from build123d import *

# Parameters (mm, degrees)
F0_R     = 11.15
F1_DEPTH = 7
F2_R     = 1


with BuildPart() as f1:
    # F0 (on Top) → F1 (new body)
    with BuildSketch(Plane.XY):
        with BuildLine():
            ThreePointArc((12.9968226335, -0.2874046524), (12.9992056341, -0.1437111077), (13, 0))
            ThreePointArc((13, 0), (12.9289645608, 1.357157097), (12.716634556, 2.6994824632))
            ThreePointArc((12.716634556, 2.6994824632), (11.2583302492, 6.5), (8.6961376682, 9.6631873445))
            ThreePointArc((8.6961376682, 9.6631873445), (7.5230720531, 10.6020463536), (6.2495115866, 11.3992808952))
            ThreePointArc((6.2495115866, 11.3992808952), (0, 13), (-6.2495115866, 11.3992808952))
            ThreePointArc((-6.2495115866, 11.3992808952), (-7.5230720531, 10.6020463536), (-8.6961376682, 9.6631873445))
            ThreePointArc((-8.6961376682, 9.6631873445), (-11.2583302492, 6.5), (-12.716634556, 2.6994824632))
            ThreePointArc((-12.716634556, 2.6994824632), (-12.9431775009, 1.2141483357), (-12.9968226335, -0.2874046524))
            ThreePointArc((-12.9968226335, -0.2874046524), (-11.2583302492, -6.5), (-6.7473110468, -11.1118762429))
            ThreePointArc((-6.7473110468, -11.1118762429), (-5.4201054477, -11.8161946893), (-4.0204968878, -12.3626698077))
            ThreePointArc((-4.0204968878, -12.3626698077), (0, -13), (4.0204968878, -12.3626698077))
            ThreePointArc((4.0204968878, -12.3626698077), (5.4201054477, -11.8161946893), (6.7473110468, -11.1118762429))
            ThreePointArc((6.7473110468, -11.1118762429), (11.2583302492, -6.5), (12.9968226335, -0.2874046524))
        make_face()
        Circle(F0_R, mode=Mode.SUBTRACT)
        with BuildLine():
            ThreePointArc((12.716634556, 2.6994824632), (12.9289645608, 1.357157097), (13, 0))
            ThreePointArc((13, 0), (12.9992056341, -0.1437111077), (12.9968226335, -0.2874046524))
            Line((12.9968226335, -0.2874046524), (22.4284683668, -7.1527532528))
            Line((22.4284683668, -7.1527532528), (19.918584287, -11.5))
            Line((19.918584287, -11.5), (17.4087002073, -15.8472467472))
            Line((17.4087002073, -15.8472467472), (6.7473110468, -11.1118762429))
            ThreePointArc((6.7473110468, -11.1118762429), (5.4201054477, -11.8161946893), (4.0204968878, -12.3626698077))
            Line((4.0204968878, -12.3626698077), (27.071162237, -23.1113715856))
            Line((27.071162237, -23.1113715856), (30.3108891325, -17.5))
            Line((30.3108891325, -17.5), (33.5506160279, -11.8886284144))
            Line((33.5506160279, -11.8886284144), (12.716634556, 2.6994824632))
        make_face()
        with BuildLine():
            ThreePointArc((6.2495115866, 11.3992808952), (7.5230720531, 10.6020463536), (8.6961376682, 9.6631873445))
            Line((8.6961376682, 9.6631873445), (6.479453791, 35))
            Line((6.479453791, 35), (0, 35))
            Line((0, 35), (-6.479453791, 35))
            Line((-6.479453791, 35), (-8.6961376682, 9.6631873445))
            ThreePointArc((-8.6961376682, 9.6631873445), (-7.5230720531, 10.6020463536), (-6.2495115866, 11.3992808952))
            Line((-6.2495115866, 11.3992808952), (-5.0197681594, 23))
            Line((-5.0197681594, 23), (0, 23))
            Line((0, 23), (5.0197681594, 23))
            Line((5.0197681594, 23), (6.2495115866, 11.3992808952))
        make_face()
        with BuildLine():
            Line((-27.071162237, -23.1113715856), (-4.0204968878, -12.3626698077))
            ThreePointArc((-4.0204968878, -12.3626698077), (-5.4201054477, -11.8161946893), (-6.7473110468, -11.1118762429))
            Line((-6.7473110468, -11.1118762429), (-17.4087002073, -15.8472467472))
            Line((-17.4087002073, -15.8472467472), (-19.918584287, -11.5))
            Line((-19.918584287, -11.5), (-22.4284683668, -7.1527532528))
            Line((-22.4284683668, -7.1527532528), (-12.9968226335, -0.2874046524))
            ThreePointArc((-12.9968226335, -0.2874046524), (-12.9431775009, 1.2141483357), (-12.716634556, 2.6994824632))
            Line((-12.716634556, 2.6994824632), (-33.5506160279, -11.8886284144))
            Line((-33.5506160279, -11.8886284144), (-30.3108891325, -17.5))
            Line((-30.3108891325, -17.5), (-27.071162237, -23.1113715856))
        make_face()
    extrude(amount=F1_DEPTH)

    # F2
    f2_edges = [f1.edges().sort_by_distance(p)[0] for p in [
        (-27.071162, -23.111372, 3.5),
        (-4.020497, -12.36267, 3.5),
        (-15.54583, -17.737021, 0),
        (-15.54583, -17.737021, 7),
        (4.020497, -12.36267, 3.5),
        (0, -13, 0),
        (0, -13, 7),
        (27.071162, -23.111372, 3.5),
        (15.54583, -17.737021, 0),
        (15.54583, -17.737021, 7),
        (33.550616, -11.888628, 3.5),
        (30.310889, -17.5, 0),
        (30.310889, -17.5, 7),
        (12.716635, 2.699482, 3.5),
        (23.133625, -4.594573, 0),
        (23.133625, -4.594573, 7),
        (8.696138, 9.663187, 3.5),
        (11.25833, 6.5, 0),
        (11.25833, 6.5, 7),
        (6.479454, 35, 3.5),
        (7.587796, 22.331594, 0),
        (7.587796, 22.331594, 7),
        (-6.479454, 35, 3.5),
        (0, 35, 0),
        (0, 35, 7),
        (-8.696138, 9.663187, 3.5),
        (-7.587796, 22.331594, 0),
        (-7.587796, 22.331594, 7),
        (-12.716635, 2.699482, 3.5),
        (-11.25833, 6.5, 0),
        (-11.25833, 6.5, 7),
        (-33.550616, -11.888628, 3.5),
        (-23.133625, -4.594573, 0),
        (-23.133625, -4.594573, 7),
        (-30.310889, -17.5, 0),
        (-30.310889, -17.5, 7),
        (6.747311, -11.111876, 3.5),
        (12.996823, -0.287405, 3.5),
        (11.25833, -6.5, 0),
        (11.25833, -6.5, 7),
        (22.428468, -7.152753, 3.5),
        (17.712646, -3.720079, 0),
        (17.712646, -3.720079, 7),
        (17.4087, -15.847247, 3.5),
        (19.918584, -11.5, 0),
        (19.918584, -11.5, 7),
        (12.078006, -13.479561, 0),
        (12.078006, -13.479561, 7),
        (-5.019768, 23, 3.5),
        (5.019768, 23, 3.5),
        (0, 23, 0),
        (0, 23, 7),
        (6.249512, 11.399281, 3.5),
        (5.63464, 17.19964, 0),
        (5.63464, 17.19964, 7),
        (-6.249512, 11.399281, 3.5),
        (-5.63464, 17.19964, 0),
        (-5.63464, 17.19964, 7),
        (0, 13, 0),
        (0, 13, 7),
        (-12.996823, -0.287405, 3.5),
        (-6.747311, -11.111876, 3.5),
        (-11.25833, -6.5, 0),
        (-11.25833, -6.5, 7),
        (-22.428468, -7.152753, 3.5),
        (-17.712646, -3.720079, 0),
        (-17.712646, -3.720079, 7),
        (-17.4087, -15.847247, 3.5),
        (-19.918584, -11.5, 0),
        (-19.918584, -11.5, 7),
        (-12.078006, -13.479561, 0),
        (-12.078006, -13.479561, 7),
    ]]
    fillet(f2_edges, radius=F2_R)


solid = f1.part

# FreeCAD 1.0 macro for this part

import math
import FreeCAD as App
import Part
import Sketcher
Q = App.Units.Quantity


def edges_at(feature, points):
    """Names of the edges that pass closest to the given points."""
    edges = feature.Shape.Edges
    near = lambda p: min(range(len(edges)), key=lambda i: edges[i].distToShape(Part.Vertex(*p))[0])
    return sorted({f"Edge{near(p) + 1}" for p in points})

doc = App.newDocument("Part")
body = doc.addObject("PartDesign::Body", "Body")

sketch1 = doc.addObject("Sketcher::SketchObject", "Sketch")
body.addObject(sketch1)
sketch1.AttachmentSupport = (doc.XY_Plane, [""])
sketch1.MapMode = "FlatFace"
sketch1.addGeometry([
    Part.ArcOfCircle(Part.Circle(App.Vector(0, 0, 0), App.Vector(0, 0, 1), 13), math.radians(-108.015182), math.radians(-71.984818)),
    Part.LineSegment(App.Vector(4.020497, -12.36267, 0), App.Vector(27.071162, -23.111372, 0)),
    Part.LineSegment(App.Vector(27.071162, -23.111372, 0), App.Vector(30.310889, -17.5, 0)),
    Part.LineSegment(App.Vector(30.310889, -17.5, 0), App.Vector(33.550616, -11.888628, 0)),
    Part.LineSegment(App.Vector(33.550616, -11.888628, 0), App.Vector(12.716635, 2.699482, 0)),
    Part.ArcOfCircle(Part.Circle(App.Vector(0, 0, 0), App.Vector(0, 0, 1), 13), math.radians(11.984818), math.radians(48.015182)),
    Part.LineSegment(App.Vector(8.696138, 9.663187, 0), App.Vector(6.479454, 35, 0)),
    Part.LineSegment(App.Vector(6.479454, 35, 0), App.Vector(-6.479454, 35, 0)),
    Part.LineSegment(App.Vector(-6.479454, 35, 0), App.Vector(-8.696138, 9.663187, 0)),
    Part.ArcOfCircle(Part.Circle(App.Vector(0, 0, 0), App.Vector(0, 0, 1), 13), math.radians(131.984818), math.radians(168.015182)),
    Part.LineSegment(App.Vector(-12.716635, 2.699482, 0), App.Vector(-33.550616, -11.888628, 0)),
    Part.LineSegment(App.Vector(-33.550616, -11.888628, 0), App.Vector(-30.310889, -17.5, 0)),
    Part.LineSegment(App.Vector(-30.310889, -17.5, 0), App.Vector(-27.071162, -23.111372, 0)),
    Part.LineSegment(App.Vector(-27.071162, -23.111372, 0), App.Vector(-4.020497, -12.36267, 0)),
    Part.ArcOfCircle(Part.Circle(App.Vector(0, 0, 0), App.Vector(0, 0, 1), 13), math.radians(-58.733199), math.radians(-1.266801)),
    Part.LineSegment(App.Vector(12.996823, -0.287405, 0), App.Vector(22.428468, -7.152753, 0)),
    Part.LineSegment(App.Vector(22.428468, -7.152753, 0), App.Vector(19.918584, -11.5, 0)),
    Part.LineSegment(App.Vector(19.918584, -11.5, 0), App.Vector(17.4087, -15.847247, 0)),
    Part.LineSegment(App.Vector(17.4087, -15.847247, 0), App.Vector(6.747311, -11.111876, 0)),
    Part.ArcOfCircle(Part.Circle(App.Vector(0, 0, 0), App.Vector(0, 0, 1), 13), math.radians(-178.733199), math.radians(-121.266801)),
    Part.LineSegment(App.Vector(-6.747311, -11.111876, 0), App.Vector(-17.4087, -15.847247, 0)),
    Part.LineSegment(App.Vector(-17.4087, -15.847247, 0), App.Vector(-19.918584, -11.5, 0)),
    Part.LineSegment(App.Vector(-19.918584, -11.5, 0), App.Vector(-22.428468, -7.152753, 0)),
    Part.LineSegment(App.Vector(-22.428468, -7.152753, 0), App.Vector(-12.996823, -0.287405, 0)),
    Part.ArcOfCircle(Part.Circle(App.Vector(0, 0, 0), App.Vector(0, 0, 1), 13), math.radians(61.266801), math.radians(118.733199)),
    Part.LineSegment(App.Vector(-6.249512, 11.399281, 0), App.Vector(-5.019768, 23, 0)),
    Part.LineSegment(App.Vector(-5.019768, 23, 0), App.Vector(5.019768, 23, 0)),
    Part.LineSegment(App.Vector(5.019768, 23, 0), App.Vector(6.249512, 11.399281, 0)),
    Part.Circle(App.Vector(0, 0, 0), App.Vector(0, 0, 1), 11.15),
], False)
sketch1.addConstraint([
    Sketcher.Constraint("Coincident", 0, 2, 1, 1),
    Sketcher.Constraint("Coincident", 1, 2, 2, 1),
    Sketcher.Constraint("Coincident", 2, 2, 3, 1),
    Sketcher.Constraint("Coincident", 3, 2, 4, 1),
    Sketcher.Constraint("Coincident", 4, 2, 5, 1),
    Sketcher.Constraint("Coincident", 5, 2, 6, 1),
    Sketcher.Constraint("Coincident", 6, 2, 7, 1),
    Sketcher.Constraint("Coincident", 7, 2, 8, 1),
    Sketcher.Constraint("Coincident", 8, 2, 9, 1),
    Sketcher.Constraint("Coincident", 9, 2, 10, 1),
    Sketcher.Constraint("Coincident", 10, 2, 11, 1),
    Sketcher.Constraint("Coincident", 11, 2, 12, 1),
    Sketcher.Constraint("Coincident", 12, 2, 13, 1),
    Sketcher.Constraint("Coincident", 13, 2, 0, 1),
    Sketcher.Constraint("Coincident", 14, 2, 15, 1),
    Sketcher.Constraint("Coincident", 15, 2, 16, 1),
    Sketcher.Constraint("Coincident", 16, 2, 17, 1),
    Sketcher.Constraint("Coincident", 17, 2, 18, 1),
    Sketcher.Constraint("Coincident", 18, 2, 14, 1),
    Sketcher.Constraint("Coincident", 19, 2, 20, 1),
    Sketcher.Constraint("Coincident", 20, 2, 21, 1),
    Sketcher.Constraint("Coincident", 21, 2, 22, 1),
    Sketcher.Constraint("Coincident", 22, 2, 23, 1),
    Sketcher.Constraint("Coincident", 23, 2, 19, 1),
    Sketcher.Constraint("Coincident", 24, 2, 25, 1),
    Sketcher.Constraint("Coincident", 25, 2, 26, 1),
    Sketcher.Constraint("Coincident", 26, 2, 27, 1),
    Sketcher.Constraint("Coincident", 27, 2, 24, 1),
    Sketcher.Constraint("Horizontal", 7),
    Sketcher.Constraint("Horizontal", 26),
    Sketcher.Constraint("Coincident", 0, 3, -1, 1),
    Sketcher.Constraint("Coincident", 5, 3, -1, 1),
    Sketcher.Constraint("Coincident", 9, 3, -1, 1),
    Sketcher.Constraint("Coincident", 14, 3, -1, 1),
    Sketcher.Constraint("Coincident", 19, 3, -1, 1),
    Sketcher.Constraint("Coincident", 24, 3, -1, 1),
    Sketcher.Constraint("Coincident", 28, 3, -1, 1),
    Sketcher.Constraint("Equal", 0, 5),
    Sketcher.Constraint("Equal", 5, 9),
    Sketcher.Constraint("Equal", 9, 14),
    Sketcher.Constraint("Equal", 14, 19),
    Sketcher.Constraint("Equal", 19, 24),
    Sketcher.Constraint("Symmetric", 3, 2, 10, 2, -2),
    Sketcher.Constraint("Symmetric", 2, 2, 11, 2, -2),
    Sketcher.Constraint("Symmetric", 1, 2, 12, 2, -2),
    Sketcher.Constraint("Symmetric", 17, 2, 20, 2, -2),
    Sketcher.Constraint("Symmetric", 16, 2, 21, 2, -2),
    Sketcher.Constraint("Symmetric", 15, 2, 22, 2, -2),
    Sketcher.Constraint("Parallel", 2, 3),
    Sketcher.Constraint("Parallel", 3, 16),
    Sketcher.Constraint("Parallel", 16, 17),
    Sketcher.Constraint("Horizontal", 5, 2, 8, 2),
    Sketcher.Constraint("Horizontal", 4, 2, 9, 2),
    Sketcher.Constraint("Horizontal", 0, 2, 13, 2),
    Sketcher.Constraint("Horizontal", 18, 2, 19, 2),
    Sketcher.Constraint("Horizontal", 14, 2, 23, 2),
    Sketcher.Constraint("Horizontal", 24, 2, 27, 2),
    Sketcher.Constraint("Equal", 2, 3),
    Sketcher.Constraint("Equal", 1, 4),
    Sketcher.Constraint("Equal", 4, 6),
    Sketcher.Constraint("Equal", 6, 8),
    Sketcher.Constraint("Equal", 16, 17),
    Sketcher.Constraint("Equal", 15, 18),
    Sketcher.Constraint("Equal", 23, 25),
    Sketcher.Constraint("Equal", 25, 27),
    Sketcher.Constraint("Radius", 0, Q("13 mm")),
    Sketcher.Constraint("Diameter", 28, Q("22.3 mm")),
    Sketcher.Constraint("Angle", 1, Q("-25 deg")),
    Sketcher.Constraint("Angle", 2, Q("60 deg")),
    Sketcher.Constraint("Angle", 4, Q("145 deg")),
    Sketcher.Constraint("Angle", 6, Q("95 deg")),
    Sketcher.Constraint("DistanceY", -1, 1, 6, 2, Q("35 mm")),
    Sketcher.Constraint("DistanceY", -1, 1, 25, 2, Q("23 mm")),
    Sketcher.Constraint("DistanceY", 2, 2, 16, 2, Q("6 mm")),
    Sketcher.Constraint("DistanceY", 2, 2, -1, 1, Q("17.5 mm")),
    Sketcher.Constraint("DistanceX", -1, 1, 17, 2, Q("17.4087 mm")),
    Sketcher.Constraint("DistanceY", 1, 2, 0, 2, Q("10.748702 mm")),
    Sketcher.Constraint("DistanceY", 9, 2, 24, 2, Q("8.699798 mm")),
    Sketcher.Constraint("Distance", 16, Q("5.019768 mm")),
    Sketcher.Constraint("DistanceX", 26, 1, 26, 2, Q("10.039536 mm")),
])
pad1 = doc.addObject("PartDesign::Pad", "Pad")
body.addObject(pad1)
pad1.Profile = sketch1
pad1.Length = 7
doc.recompute()

fillet = doc.addObject("PartDesign::Fillet", "Fillet")
body.addObject(fillet)
fillet.Base = (pad1, edges_at(pad1, [
    (-27.071, -23.111, 3.5),
    (-4.02, -12.363, 3.5),
    (-15.546, -17.737, 0),
    (-15.546, -17.737, 7),
    (4.02, -12.363, 3.5),
    (0, -13, 0),
    (0, -13, 7),
    (27.071, -23.111, 3.5),
    (15.546, -17.737, 0),
    (15.546, -17.737, 7),
    (33.551, -11.889, 3.5),
    (28.691, -20.306, 0),
    (28.691, -20.306, 7),
    (12.717, 2.699, 3.5),
    (23.134, -4.595, 0),
    (23.134, -4.595, 7),
    (8.696, 9.663, 3.5),
    (11.258, 6.5, 0),
    (11.258, 6.5, 7),
    (6.479, 35, 3.5),
    (7.588, 22.332, 0),
    (7.588, 22.332, 7),
    (-6.479, 35, 3.5),
    (0, 35, 0),
    (0, 35, 7),
    (-8.696, 9.663, 3.5),
    (-7.588, 22.332, 0),
    (-7.588, 22.332, 7),
    (-12.717, 2.699, 3.5),
    (-11.258, 6.5, 0),
    (-11.258, 6.5, 7),
    (-33.551, -11.889, 3.5),
    (-23.134, -4.595, 0),
    (-23.134, -4.595, 7),
    (-31.931, -14.694, 0),
    (-31.931, -14.694, 7),
    (6.747, -11.112, 3.5),
    (12.997, -0.287, 3.5),
    (11.258, -6.5, 0),
    (11.258, -6.5, 7),
    (22.428, -7.153, 3.5),
    (17.713, -3.72, 0),
    (17.713, -3.72, 7),
    (17.409, -15.847, 3.5),
    (18.664, -13.674, 0),
    (18.664, -13.674, 7),
    (12.078, -13.48, 0),
    (12.078, -13.48, 7),
    (-5.02, 23, 3.5),
    (5.02, 23, 3.5),
    (0, 23, 0),
    (0, 23, 7),
    (6.25, 11.399, 3.5),
    (5.635, 17.2, 0),
    (5.635, 17.2, 7),
    (-6.25, 11.399, 3.5),
    (-5.635, 17.2, 0),
    (-5.635, 17.2, 7),
    (0, 13, 0),
    (0, 13, 7),
    (-12.997, -0.287, 3.5),
    (-6.747, -11.112, 3.5),
    (-11.258, -6.5, 0),
    (-11.258, -6.5, 7),
    (-22.428, -7.153, 3.5),
    (-17.713, -3.72, 0),
    (-17.713, -3.72, 7),
    (-17.409, -15.847, 3.5),
    (-18.664, -13.674, 0),
    (-18.664, -13.674, 7),
    (-12.078, -13.48, 0),
    (-12.078, -13.48, 7),
]))
fillet.Radius = 1

doc.recompute()
